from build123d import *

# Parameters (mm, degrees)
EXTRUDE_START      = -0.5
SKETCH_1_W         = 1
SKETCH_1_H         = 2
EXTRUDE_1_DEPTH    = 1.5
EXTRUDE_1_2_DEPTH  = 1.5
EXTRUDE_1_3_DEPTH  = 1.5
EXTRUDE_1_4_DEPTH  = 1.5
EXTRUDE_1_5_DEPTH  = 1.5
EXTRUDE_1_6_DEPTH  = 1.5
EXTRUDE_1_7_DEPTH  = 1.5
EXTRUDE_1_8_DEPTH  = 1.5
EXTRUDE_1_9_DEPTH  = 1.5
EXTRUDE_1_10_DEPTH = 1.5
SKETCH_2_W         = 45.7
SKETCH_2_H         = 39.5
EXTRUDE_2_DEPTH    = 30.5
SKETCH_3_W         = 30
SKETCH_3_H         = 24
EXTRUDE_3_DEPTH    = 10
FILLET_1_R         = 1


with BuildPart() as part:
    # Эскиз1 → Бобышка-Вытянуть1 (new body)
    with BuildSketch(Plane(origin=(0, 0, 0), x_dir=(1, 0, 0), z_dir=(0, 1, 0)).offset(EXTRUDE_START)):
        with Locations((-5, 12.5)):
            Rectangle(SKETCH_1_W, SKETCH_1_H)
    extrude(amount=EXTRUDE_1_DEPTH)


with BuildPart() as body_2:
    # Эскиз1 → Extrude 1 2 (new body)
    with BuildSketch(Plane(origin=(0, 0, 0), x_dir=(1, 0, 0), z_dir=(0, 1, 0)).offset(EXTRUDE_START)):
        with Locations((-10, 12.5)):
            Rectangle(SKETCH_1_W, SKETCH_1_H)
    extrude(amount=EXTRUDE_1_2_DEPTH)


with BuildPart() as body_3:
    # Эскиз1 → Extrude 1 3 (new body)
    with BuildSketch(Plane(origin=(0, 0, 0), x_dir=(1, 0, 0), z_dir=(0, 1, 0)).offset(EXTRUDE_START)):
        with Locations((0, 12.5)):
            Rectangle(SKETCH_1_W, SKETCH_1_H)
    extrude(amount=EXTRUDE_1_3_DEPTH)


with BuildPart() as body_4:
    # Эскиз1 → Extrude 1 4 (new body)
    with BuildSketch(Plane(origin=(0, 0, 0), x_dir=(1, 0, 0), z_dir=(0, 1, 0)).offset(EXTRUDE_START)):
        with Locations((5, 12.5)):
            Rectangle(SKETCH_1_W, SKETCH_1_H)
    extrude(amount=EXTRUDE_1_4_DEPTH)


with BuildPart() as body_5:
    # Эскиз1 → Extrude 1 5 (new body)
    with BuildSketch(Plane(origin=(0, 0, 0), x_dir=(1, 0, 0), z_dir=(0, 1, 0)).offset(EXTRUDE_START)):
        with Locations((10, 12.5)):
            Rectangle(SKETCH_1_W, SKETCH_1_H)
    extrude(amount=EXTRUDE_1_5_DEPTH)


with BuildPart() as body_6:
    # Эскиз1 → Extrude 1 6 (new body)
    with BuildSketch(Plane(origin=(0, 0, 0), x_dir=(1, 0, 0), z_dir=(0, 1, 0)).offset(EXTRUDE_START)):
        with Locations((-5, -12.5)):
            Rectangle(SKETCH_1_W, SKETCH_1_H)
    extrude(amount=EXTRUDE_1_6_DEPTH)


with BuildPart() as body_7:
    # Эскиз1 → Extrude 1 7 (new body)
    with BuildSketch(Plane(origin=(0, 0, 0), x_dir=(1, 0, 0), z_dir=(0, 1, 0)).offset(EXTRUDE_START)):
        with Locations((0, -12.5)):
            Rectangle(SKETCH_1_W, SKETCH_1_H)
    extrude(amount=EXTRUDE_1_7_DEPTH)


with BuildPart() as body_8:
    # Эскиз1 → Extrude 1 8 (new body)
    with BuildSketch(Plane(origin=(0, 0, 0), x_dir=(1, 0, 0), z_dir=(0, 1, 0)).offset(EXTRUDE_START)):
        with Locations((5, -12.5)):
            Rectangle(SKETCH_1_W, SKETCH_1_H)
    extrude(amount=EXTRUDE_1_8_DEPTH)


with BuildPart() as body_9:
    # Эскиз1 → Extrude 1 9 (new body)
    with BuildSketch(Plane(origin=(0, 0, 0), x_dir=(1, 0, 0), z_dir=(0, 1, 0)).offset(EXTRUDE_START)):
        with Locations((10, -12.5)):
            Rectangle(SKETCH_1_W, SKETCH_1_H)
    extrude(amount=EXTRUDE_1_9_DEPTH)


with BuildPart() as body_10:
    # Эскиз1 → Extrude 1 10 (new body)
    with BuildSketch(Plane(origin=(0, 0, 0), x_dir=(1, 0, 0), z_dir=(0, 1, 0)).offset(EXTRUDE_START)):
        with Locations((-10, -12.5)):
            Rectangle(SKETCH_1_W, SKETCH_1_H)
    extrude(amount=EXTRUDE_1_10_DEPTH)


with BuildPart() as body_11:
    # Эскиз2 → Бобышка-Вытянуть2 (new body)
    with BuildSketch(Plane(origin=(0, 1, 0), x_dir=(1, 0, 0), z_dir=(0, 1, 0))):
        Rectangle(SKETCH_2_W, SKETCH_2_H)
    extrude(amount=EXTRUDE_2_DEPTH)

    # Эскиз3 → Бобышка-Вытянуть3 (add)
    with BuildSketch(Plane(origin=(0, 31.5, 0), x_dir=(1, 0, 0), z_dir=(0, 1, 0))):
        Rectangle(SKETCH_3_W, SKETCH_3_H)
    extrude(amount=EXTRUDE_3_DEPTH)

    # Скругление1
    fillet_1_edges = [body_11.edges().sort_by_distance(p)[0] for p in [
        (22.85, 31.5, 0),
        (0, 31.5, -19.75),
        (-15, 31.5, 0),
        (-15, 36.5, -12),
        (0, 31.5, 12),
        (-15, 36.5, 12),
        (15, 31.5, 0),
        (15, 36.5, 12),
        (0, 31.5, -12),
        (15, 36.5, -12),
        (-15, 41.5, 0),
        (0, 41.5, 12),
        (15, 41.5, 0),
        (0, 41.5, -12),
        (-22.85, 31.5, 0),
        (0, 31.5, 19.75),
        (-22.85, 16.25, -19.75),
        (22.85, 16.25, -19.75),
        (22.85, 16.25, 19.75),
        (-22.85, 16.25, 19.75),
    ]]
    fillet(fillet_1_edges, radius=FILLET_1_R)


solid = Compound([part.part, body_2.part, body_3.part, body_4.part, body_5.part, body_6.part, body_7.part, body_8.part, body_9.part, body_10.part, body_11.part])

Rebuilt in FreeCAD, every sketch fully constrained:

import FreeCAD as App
import Part
import Sketcher

V = App.Vector


def edges_at(feature, points):
    """Names of the edges that pass closest to the given points."""
    edges = feature.Shape.Edges
    near = lambda p: min(range(len(edges)), key=lambda i: edges[i].distToShape(Part.Vertex(*p))[0])
    return sorted({f"Edge{near(p) + 1}" for p in points})

doc = App.newDocument("Part")
params = doc.addObject("Spreadsheet::Sheet", "Params")
for row, (alias, value) in enumerate([
    ("sketch1_width", "1 mm"),
    ("sketch1_height", "2 mm"),
    ("pad1_length", "1.5 mm"),
    ("sketch2_width", "1 mm"),
    ("sketch2_height", "2 mm"),
    ("pad2_length", "1.5 mm"),
    ("sketch3_width", "1 mm"),
    ("sketch3_height", "2 mm"),
    ("pad3_length", "1.5 mm"),
    ("sketch4_width", "1 mm"),
    ("sketch4_height", "2 mm"),
    ("pad4_length", "1.5 mm"),
    ("sketch5_width", "1 mm"),
    ("sketch5_height", "2 mm"),
    ("pad5_length", "1.5 mm"),
    ("sketch6_width", "1 mm"),
    ("sketch6_height", "2 mm"),
    ("pad6_length", "1.5 mm"),
    ("sketch7_width", "1 mm"),
    ("sketch7_height", "2 mm"),
    ("pad7_length", "1.5 mm"),
    ("sketch8_width", "1 mm"),
    ("sketch8_height", "2 mm"),
    ("pad8_length", "1.5 mm"),
    ("sketch9_width", "1 mm"),
    ("sketch9_height", "2 mm"),
    ("pad9_length", "1.5 mm"),
    ("sketch10_width", "1 mm"),
    ("sketch10_height", "2 mm"),
    ("pad10_length", "1.5 mm"),
    ("sketch11_width", "45.7 mm"),
    ("sketch11_height", "39.5 mm"),
    ("pad11_length", "30.5 mm"),
    ("sketch12_width", "30 mm"),
    ("sketch12_height", "24 mm"),
    ("pad12_length", "10 mm"),
    ("fillet_radius", "1 mm"),
], start=1):
    params.set(f"A{row}", alias)
    params.set(f"B{row}", "=" + value)
    params.setAlias(f"B{row}", alias)

body = doc.addObject("PartDesign::Body", "Body")

sketch1 = body.newObject("Sketcher::SketchObject", "Sketch")
sketch1.AttachmentSupport = (doc.getObject("XZ_Plane"), [""])
sketch1.MapMode = "FlatFace"
sketch1.AttachmentOffset = App.Placement(V(0, 0, 0.5), App.Rotation())
sketch1.addGeometry([
    Part.LineSegment(V(-5.5, -13.5, 0), V(-5.5, -11.5, 0)),
    Part.LineSegment(V(-5.5, -11.5, 0), V(-4.5, -11.5, 0)),
    Part.LineSegment(V(-4.5, -11.5, 0), V(-4.5, -13.5, 0)),
    Part.LineSegment(V(-4.5, -13.5, 0), V(-5.5, -13.5, 0)),
], False)
sketch1.addConstraint([
    Sketcher.Constraint("Coincident", 0, 2, 1, 1),
    Sketcher.Constraint("Coincident", 1, 2, 2, 1),
    Sketcher.Constraint("Coincident", 2, 2, 3, 1),
    Sketcher.Constraint("Coincident", 3, 2, 0, 1),
    Sketcher.Constraint("Vertical", 0),
    Sketcher.Constraint("Horizontal", 1),
    Sketcher.Constraint("Vertical", 2),
    Sketcher.Constraint("Horizontal", 3),
    Sketcher.Constraint("DistanceX", 1, 1, 1, 2, 1.0),
    Sketcher.Constraint("DistanceY", 0, 1, 0, 2, 2.0),
    Sketcher.Constraint("DistanceX", 0, 2, -1, 1, 5.5),
    Sketcher.Constraint("DistanceY", 0, 2, -1, 1, 11.5),
])
sketch1.setExpression("Constraints[8]", "Params.sketch1_width")
sketch1.setExpression("Constraints[9]", "Params.sketch1_height")
pad1 = body.newObject("PartDesign::Pad", "Pad")
pad1.Profile = sketch1
pad1.setExpression("Length", "Params.pad1_length")
pad1.Reversed = True
body2 = doc.addObject("PartDesign::Body", "Body001")

sketch2 = body2.newObject("Sketcher::SketchObject", "Sketch001")
sketch2.AttachmentSupport = (doc.getObject("XZ_Plane001"), [""])
sketch2.MapMode = "FlatFace"
sketch2.AttachmentOffset = App.Placement(V(0, 0, 0.5), App.Rotation())
sketch2.addGeometry([
    Part.LineSegment(V(-10.5, -13.5, 0), V(-10.5, -11.5, 0)),
    Part.LineSegment(V(-10.5, -11.5, 0), V(-9.5, -11.5, 0)),
    Part.LineSegment(V(-9.5, -11.5, 0), V(-9.5, -13.5, 0)),
    Part.LineSegment(V(-9.5, -13.5, 0), V(-10.5, -13.5, 0)),
], False)
sketch2.addConstraint([
    Sketcher.Constraint("Coincident", 0, 2, 1, 1),
    Sketcher.Constraint("Coincident", 1, 2, 2, 1),
    Sketcher.Constraint("Coincident", 2, 2, 3, 1),
    Sketcher.Constraint("Coincident", 3, 2, 0, 1),
    Sketcher.Constraint("Vertical", 0),
    Sketcher.Constraint("Horizontal", 1),
    Sketcher.Constraint("Vertical", 2),
    Sketcher.Constraint("Horizontal", 3),
    Sketcher.Constraint("DistanceX", 1, 1, 1, 2, 1.0),
    Sketcher.Constraint("DistanceY", 0, 1, 0, 2, 2.0),
    Sketcher.Constraint("DistanceX", 0, 2, -1, 1, 10.5),
    Sketcher.Constraint("DistanceY", 0, 2, -1, 1, 11.5),
])
sketch2.setExpression("Constraints[8]", "Params.sketch2_width")
sketch2.setExpression("Constraints[9]", "Params.sketch2_height")
pad2 = body2.newObject("PartDesign::Pad", "Pad001")
pad2.Profile = sketch2
pad2.setExpression("Length", "Params.pad2_length")
pad2.Reversed = True
body3 = doc.addObject("PartDesign::Body", "Body002")

sketch3 = body3.newObject("Sketcher::SketchObject", "Sketch002")
sketch3.AttachmentSupport = (doc.getObject("XZ_Plane002"), [""])
sketch3.MapMode = "FlatFace"
sketch3.AttachmentOffset = App.Placement(V(0, 0, 0.5), App.Rotation())
sketch3.addGeometry([
    Part.LineSegment(V(-0.5, -13.5, 0), V(-0.5, -11.5, 0)),
    Part.LineSegment(V(-0.5, -11.5, 0), V(0.5, -11.5, 0)),
    Part.LineSegment(V(0.5, -11.5, 0), V(0.5, -13.5, 0)),
    Part.LineSegment(V(0.5, -13.5, 0), V(-0.5, -13.5, 0)),
], False)
sketch3.addConstraint([
    Sketcher.Constraint("Coincident", 0, 2, 1, 1),
    Sketcher.Constraint("Coincident", 1, 2, 2, 1),
    Sketcher.Constraint("Coincident", 2, 2, 3, 1),
    Sketcher.Constraint("Coincident", 3, 2, 0, 1),
    Sketcher.Constraint("Vertical", 0),
    Sketcher.Constraint("Horizontal", 1),
    Sketcher.Constraint("Vertical", 2),
    Sketcher.Constraint("Horizontal", 3),
    Sketcher.Constraint("DistanceX", 1, 1, 1, 2, 1.0),
    Sketcher.Constraint("DistanceY", 0, 1, 0, 2, 2.0),
    Sketcher.Constraint("DistanceX", 0, 2, -1, 1, 0.5),
    Sketcher.Constraint("DistanceY", 0, 2, -1, 1, 11.5),
])
sketch3.setExpression("Constraints[8]", "Params.sketch3_width")
sketch3.setExpression("Constraints[9]", "Params.sketch3_height")
pad3 = body3.newObject("PartDesign::Pad", "Pad002")
pad3.Profile = sketch3
pad3.setExpression("Length", "Params.pad3_length")
pad3.Reversed = True
body4 = doc.addObject("PartDesign::Body", "Body003")

sketch4 = body4.newObject("Sketcher::SketchObject", "Sketch003")
sketch4.AttachmentSupport = (doc.getObject("XZ_Plane003"), [""])
sketch4.MapMode = "FlatFace"
sketch4.AttachmentOffset = App.Placement(V(0, 0, 0.5), App.Rotation())
sketch4.addGeometry([
    Part.LineSegment(V(4.5, -13.5, 0), V(4.5, -11.5, 0)),
    Part.LineSegment(V(4.5, -11.5, 0), V(5.5, -11.5, 0)),
    Part.LineSegment(V(5.5, -11.5, 0), V(5.5, -13.5, 0)),
    Part.LineSegment(V(5.5, -13.5, 0), V(4.5, -13.5, 0)),
], False)
sketch4.addConstraint([
    Sketcher.Constraint("Coincident", 0, 2, 1, 1),
    Sketcher.Constraint("Coincident", 1, 2, 2, 1),
    Sketcher.Constraint("Coincident", 2, 2, 3, 1),
    Sketcher.Constraint("Coincident", 3, 2, 0, 1),
    Sketcher.Constraint("Vertical", 0),
    Sketcher.Constraint("Horizontal", 1),
    Sketcher.Constraint("Vertical", 2),
    Sketcher.Constraint("Horizontal", 3),
    Sketcher.Constraint("DistanceX", 1, 1, 1, 2, 1.0),
    Sketcher.Constraint("DistanceY", 0, 1, 0, 2, 2.0),
    Sketcher.Constraint("DistanceX", -1, 1, 0, 2, 4.5),
    Sketcher.Constraint("DistanceY", 0, 2, -1, 1, 11.5),
])
sketch4.setExpression("Constraints[8]", "Params.sketch4_width")
sketch4.setExpression("Constraints[9]", "Params.sketch4_height")
pad4 = body4.newObject("PartDesign::Pad", "Pad003")
pad4.Profile = sketch4
pad4.setExpression("Length", "Params.pad4_length")
pad4.Reversed = True
body5 = doc.addObject("PartDesign::Body", "Body004")

sketch5 = body5.newObject("Sketcher::SketchObject", "Sketch004")
sketch5.AttachmentSupport = (doc.getObject("XZ_Plane004"), [""])
sketch5.MapMode = "FlatFace"
sketch5.AttachmentOffset = App.Placement(V(0, 0, 0.5), App.Rotation())
sketch5.addGeometry([
    Part.LineSegment(V(9.5, -13.5, 0), V(9.5, -11.5, 0)),
    Part.LineSegment(V(9.5, -11.5, 0), V(10.5, -11.5, 0)),
    Part.LineSegment(V(10.5, -11.5, 0), V(10.5, -13.5, 0)),
    Part.LineSegment(V(10.5, -13.5, 0), V(9.5, -13.5, 0)),
], False)
sketch5.addConstraint([
    Sketcher.Constraint("Coincident", 0, 2, 1, 1),
    Sketcher.Constraint("Coincident", 1, 2, 2, 1),
    Sketcher.Constraint("Coincident", 2, 2, 3, 1),
    Sketcher.Constraint("Coincident", 3, 2, 0, 1),
    Sketcher.Constraint("Vertical", 0),
    Sketcher.Constraint("Horizontal", 1),
    Sketcher.Constraint("Vertical", 2),
    Sketcher.Constraint("Horizontal", 3),
    Sketcher.Constraint("DistanceX", 1, 1, 1, 2, 1.0),
    Sketcher.Constraint("DistanceY", 0, 1, 0, 2, 2.0),
    Sketcher.Constraint("DistanceX", -1, 1, 0, 2, 9.5),
    Sketcher.Constraint("DistanceY", 0, 2, -1, 1, 11.5),
])
sketch5.setExpression("Constraints[8]", "Params.sketch5_width")
sketch5.setExpression("Constraints[9]", "Params.sketch5_height")
pad5 = body5.newObject("PartDesign::Pad", "Pad004")
pad5.Profile = sketch5
pad5.setExpression("Length", "Params.pad5_length")
pad5.Reversed = True
body6 = doc.addObject("PartDesign::Body", "Body005")

sketch6 = body6.newObject("Sketcher::SketchObject", "Sketch005")
sketch6.AttachmentSupport = (doc.getObject("XZ_Plane005"), [""])
sketch6.MapMode = "FlatFace"
sketch6.AttachmentOffset = App.Placement(V(0, 0, 0.5), App.Rotation())
sketch6.addGeometry([
    Part.LineSegment(V(-5.5, 11.5, 0), V(-5.5, 13.5, 0)),
    Part.LineSegment(V(-5.5, 13.5, 0), V(-4.5, 13.5, 0)),
    Part.LineSegment(V(-4.5, 13.5, 0), V(-4.5, 11.5, 0)),
    Part.LineSegment(V(-4.5, 11.5, 0), V(-5.5, 11.5, 0)),
], False)
sketch6.addConstraint([
    Sketcher.Constraint("Coincident", 0, 2, 1, 1),
    Sketcher.Constraint("Coincident", 1, 2, 2, 1),
    Sketcher.Constraint("Coincident", 2, 2, 3, 1),
    Sketcher.Constraint("Coincident", 3, 2, 0, 1),
    Sketcher.Constraint("Vertical", 0),
    Sketcher.Constraint("Horizontal", 1),
    Sketcher.Constraint("Vertical", 2),
    Sketcher.Constraint("Horizontal", 3),
    Sketcher.Constraint("DistanceX", 1, 1, 1, 2, 1.0),
    Sketcher.Constraint("DistanceY", 0, 1, 0, 2, 2.0),
    Sketcher.Constraint("DistanceX", 0, 2, -1, 1, 5.5),
    Sketcher.Constraint("DistanceY", -1, 1, 0, 2, 13.5),
])
sketch6.setExpression("Constraints[8]", "Params.sketch6_width")
sketch6.setExpression("Constraints[9]", "Params.sketch6_height")
pad6 = body6.newObject("PartDesign::Pad", "Pad005")
pad6.Profile = sketch6
pad6.setExpression("Length", "Params.pad6_length")
pad6.Reversed = True
body7 = doc.addObject("PartDesign::Body", "Body006")

sketch7 = body7.newObject("Sketcher::SketchObject", "Sketch006")
sketch7.AttachmentSupport = (doc.getObject("XZ_Plane006"), [""])
sketch7.MapMode = "FlatFace"
sketch7.AttachmentOffset = App.Placement(V(0, 0, 0.5), App.Rotation())
sketch7.addGeometry([
    Part.LineSegment(V(-0.5, 11.5, 0), V(-0.5, 13.5, 0)),
    Part.LineSegment(V(-0.5, 13.5, 0), V(0.5, 13.5, 0)),
    Part.LineSegment(V(0.5, 13.5, 0), V(0.5, 11.5, 0)),
    Part.LineSegment(V(0.5, 11.5, 0), V(-0.5, 11.5, 0)),
], False)
sketch7.addConstraint([
    Sketcher.Constraint("Coincident", 0, 2, 1, 1),
    Sketcher.Constraint("Coincident", 1, 2, 2, 1),
    Sketcher.Constraint("Coincident", 2, 2, 3, 1),
    Sketcher.Constraint("Coincident", 3, 2, 0, 1),
    Sketcher.Constraint("Vertical", 0),
    Sketcher.Constraint("Horizontal", 1),
    Sketcher.Constraint("Vertical", 2),
    Sketcher.Constraint("Horizontal", 3),
    Sketcher.Constraint("DistanceX", 1, 1, 1, 2, 1.0),
    Sketcher.Constraint("DistanceY", 0, 1, 0, 2, 2.0),
    Sketcher.Constraint("DistanceX", 0, 2, -1, 1, 0.5),
    Sketcher.Constraint("DistanceY", -1, 1, 0, 2, 13.5),
])
sketch7.setExpression("Constraints[8]", "Params.sketch7_width")
sketch7.setExpression("Constraints[9]", "Params.sketch7_height")
pad7 = body7.newObject("PartDesign::Pad", "Pad006")
pad7.Profile = sketch7
pad7.setExpression("Length", "Params.pad7_length")
pad7.Reversed = True
body8 = doc.addObject("PartDesign::Body", "Body007")

sketch8 = body8.newObject("Sketcher::SketchObject", "Sketch007")
sketch8.AttachmentSupport = (doc.getObject("XZ_Plane007"), [""])
sketch8.MapMode = "FlatFace"
sketch8.AttachmentOffset = App.Placement(V(0, 0, 0.5), App.Rotation())
sketch8.addGeometry([
    Part.LineSegment(V(4.5, 11.5, 0), V(4.5, 13.5, 0)),
    Part.LineSegment(V(4.5, 13.5, 0), V(5.5, 13.5, 0)),
    Part.LineSegment(V(5.5, 13.5, 0), V(5.5, 11.5, 0)),
    Part.LineSegment(V(5.5, 11.5, 0), V(4.5, 11.5, 0)),
], False)
sketch8.addConstraint([
    Sketcher.Constraint("Coincident", 0, 2, 1, 1),
    Sketcher.Constraint("Coincident", 1, 2, 2, 1),
    Sketcher.Constraint("Coincident", 2, 2, 3, 1),
    Sketcher.Constraint("Coincident", 3, 2, 0, 1),
    Sketcher.Constraint("Vertical", 0),
    Sketcher.Constraint("Horizontal", 1),
    Sketcher.Constraint("Vertical", 2),
    Sketcher.Constraint("Horizontal", 3),
    Sketcher.Constraint("DistanceX", 1, 1, 1, 2, 1.0),
    Sketcher.Constraint("DistanceY", 0, 1, 0, 2, 2.0),
    Sketcher.Constraint("DistanceX", -1, 1, 0, 2, 4.5),
    Sketcher.Constraint("DistanceY", -1, 1, 0, 2, 13.5),
])
sketch8.setExpression("Constraints[8]", "Params.sketch8_width")
sketch8.setExpression("Constraints[9]", "Params.sketch8_height")
pad8 = body8.newObject("PartDesign::Pad", "Pad007")
pad8.Profile = sketch8
pad8.setExpression("Length", "Params.pad8_length")
pad8.Reversed = True
body9 = doc.addObject("PartDesign::Body", "Body008")

sketch9 = body9.newObject("Sketcher::SketchObject", "Sketch008")
sketch9.AttachmentSupport = (doc.getObject("XZ_Plane008"), [""])
sketch9.MapMode = "FlatFace"
sketch9.AttachmentOffset = App.Placement(V(0, 0, 0.5), App.Rotation())
sketch9.addGeometry([
    Part.LineSegment(V(9.5, 11.5, 0), V(9.5, 13.5, 0)),
    Part.LineSegment(V(9.5, 13.5, 0), V(10.5, 13.5, 0)),
    Part.LineSegment(V(10.5, 13.5, 0), V(10.5, 11.5, 0)),
    Part.LineSegment(V(10.5, 11.5, 0), V(9.5, 11.5, 0)),
], False)
sketch9.addConstraint([
    Sketcher.Constraint("Coincident", 0, 2, 1, 1),
    Sketcher.Constraint("Coincident", 1, 2, 2, 1),
    Sketcher.Constraint("Coincident", 2, 2, 3, 1),
    Sketcher.Constraint("Coincident", 3, 2, 0, 1),
    Sketcher.Constraint("Vertical", 0),
    Sketcher.Constraint("Horizontal", 1),
    Sketcher.Constraint("Vertical", 2),
    Sketcher.Constraint("Horizontal", 3),
    Sketcher.Constraint("DistanceX", 1, 1, 1, 2, 1.0),
    Sketcher.Constraint("DistanceY", 0, 1, 0, 2, 2.0),
    Sketcher.Constraint("DistanceX", -1, 1, 0, 2, 9.5),
    Sketcher.Constraint("DistanceY", -1, 1, 0, 2, 13.5),
])
sketch9.setExpression("Constraints[8]", "Params.sketch9_width")
sketch9.setExpression("Constraints[9]", "Params.sketch9_height")
pad9 = body9.newObject("PartDesign::Pad", "Pad008")
pad9.Profile = sketch9
pad9.setExpression("Length", "Params.pad9_length")
pad9.Reversed = True
body10 = doc.addObject("PartDesign::Body", "Body009")

sketch10 = body10.newObject("Sketcher::SketchObject", "Sketch009")
sketch10.AttachmentSupport = (doc.getObject("XZ_Plane009"), [""])
sketch10.MapMode = "FlatFace"
sketch10.AttachmentOffset = App.Placement(V(0, 0, 0.5), App.Rotation())
sketch10.addGeometry([
    Part.LineSegment(V(-10.5, 11.5, 0), V(-10.5, 13.5, 0)),
    Part.LineSegment(V(-10.5, 13.5, 0), V(-9.5, 13.5, 0)),
    Part.LineSegment(V(-9.5, 13.5, 0), V(-9.5, 11.5, 0)),
    Part.LineSegment(V(-9.5, 11.5, 0), V(-10.5, 11.5, 0)),
], False)
sketch10.addConstraint([
    Sketcher.Constraint("Coincident", 0, 2, 1, 1),
    Sketcher.Constraint("Coincident", 1, 2, 2, 1),
    Sketcher.Constraint("Coincident", 2, 2, 3, 1),
    Sketcher.Constraint("Coincident", 3, 2, 0, 1),
    Sketcher.Constraint("Vertical", 0),
    Sketcher.Constraint("Horizontal", 1),
    Sketcher.Constraint("Vertical", 2),
    Sketcher.Constraint("Horizontal", 3),
    Sketcher.Constraint("DistanceX", 1, 1, 1, 2, 1.0),
    Sketcher.Constraint("DistanceY", 0, 1, 0, 2, 2.0),
    Sketcher.Constraint("DistanceX", 0, 2, -1, 1, 10.5),
    Sketcher.Constraint("DistanceY", -1, 1, 0, 2, 13.5),
])
sketch10.setExpression("Constraints[8]", "Params.sketch10_width")
sketch10.setExpression("Constraints[9]", "Params.sketch10_height")
pad10 = body10.newObject("PartDesign::Pad", "Pad009")
pad10.Profile = sketch10
pad10.setExpression("Length", "Params.pad10_length")
pad10.Reversed = True
body11 = doc.addObject("PartDesign::Body", "Body010")

sketch11 = body11.newObject("Sketcher::SketchObject", "Sketch010")
sketch11.AttachmentSupport = (doc.getObject("XZ_Plane010"), [""])
sketch11.MapMode = "FlatFace"
sketch11.AttachmentOffset = App.Placement(V(0, 0, -1), App.Rotation())
sketch11.addGeometry([
    Part.LineSegment(V(-23, -20, 0), V(-23, 20, 0)),
    Part.LineSegment(V(-23, 20, 0), V(23, 20, 0)),
    Part.LineSegment(V(23, 20, 0), V(23, -20, 0)),
    Part.LineSegment(V(23, -20, 0), V(-23, -20, 0)),
], False)
sketch11.addConstraint([
    Sketcher.Constraint("Coincident", 0, 2, 1, 1),
    Sketcher.Constraint("Coincident", 1, 2, 2, 1),
    Sketcher.Constraint("Coincident", 2, 2, 3, 1),
    Sketcher.Constraint("Coincident", 3, 2, 0, 1),
    Sketcher.Constraint("Vertical", 0),
    Sketcher.Constraint("Horizontal", 1),
    Sketcher.Constraint("Vertical", 2),
    Sketcher.Constraint("Horizontal", 3),
    Sketcher.Constraint("Symmetric", 0, 2, 2, 2, -1, 1),
    Sketcher.Constraint("DistanceX", 1, 1, 1, 2, 45.7),
    Sketcher.Constraint("DistanceY", 0, 1, 0, 2, 39.5),
])
sketch11.setExpression("Constraints[9]", "Params.sketch11_width")
sketch11.setExpression("Constraints[10]", "Params.sketch11_height")
pad11 = body11.newObject("PartDesign::Pad", "Pad010")
pad11.Profile = sketch11
pad11.setExpression("Length", "Params.pad11_length")
pad11.Reversed = True

sketch12 = body11.newObject("Sketcher::SketchObject", "Sketch011")
sketch12.AttachmentSupport = (doc.getObject("XZ_Plane010"), [""])
sketch12.MapMode = "FlatFace"
sketch12.AttachmentOffset = App.Placement(V(0, 0, -31.5), App.Rotation())
sketch12.addGeometry([
    Part.LineSegment(V(-15, -12, 0), V(-15, 12, 0)),
    Part.LineSegment(V(-15, 12, 0), V(15, 12, 0)),
    Part.LineSegment(V(15, 12, 0), V(15, -12, 0)),
    Part.LineSegment(V(15, -12, 0), V(-15, -12, 0)),
], False)
sketch12.addConstraint([
    Sketcher.Constraint("Coincident", 0, 2, 1, 1),
    Sketcher.Constraint("Coincident", 1, 2, 2, 1),
    Sketcher.Constraint("Coincident", 2, 2, 3, 1),
    Sketcher.Constraint("Coincident", 3, 2, 0, 1),
    Sketcher.Constraint("Vertical", 0),
    Sketcher.Constraint("Horizontal", 1),
    Sketcher.Constraint("Vertical", 2),
    Sketcher.Constraint("Horizontal", 3),
    Sketcher.Constraint("Symmetric", 0, 2, 2, 2, -1, 1),
    Sketcher.Constraint("DistanceX", 1, 1, 1, 2, 30.0),
    Sketcher.Constraint("DistanceY", 0, 1, 0, 2, 24.0),
])
sketch12.setExpression("Constraints[9]", "Params.sketch12_width")
sketch12.setExpression("Constraints[10]", "Params.sketch12_height")
pad12 = body11.newObject("PartDesign::Pad", "Pad011")
pad12.Profile = sketch12
pad12.setExpression("Length", "Params.pad12_length")
pad12.Reversed = True
doc.recompute()

fillet = body11.newObject("PartDesign::Fillet", "Fillet")
fillet.Base = (pad12, edges_at(pad12, [
    (22.85, 31.5, 0),
    (0, 31.5, -19.75),
    (-15, 31.5, 0),
    (-15, 36.5, -12),
    (0, 31.5, 12),
    (-15, 36.5, 12),
    (15, 31.5, 0),
    (15, 36.5, 12),
    (0, 31.5, -12),
    (15, 36.5, -12),
    (-15, 41.5, 0),
    (0, 41.5, 12),
    (15, 41.5, 0),
    (0, 41.5, -12),
    (-22.85, 31.5, 0),
    (0, 31.5, 19.75),
    (-22.85, 16.25, -19.75),
    (22.85, 16.25, -19.75),
    (22.85, 16.25, 19.75),
    (-22.85, 16.25, 19.75),
]))
fillet.setExpression("Radius", "Params.fillet_radius")

doc.recompute()
